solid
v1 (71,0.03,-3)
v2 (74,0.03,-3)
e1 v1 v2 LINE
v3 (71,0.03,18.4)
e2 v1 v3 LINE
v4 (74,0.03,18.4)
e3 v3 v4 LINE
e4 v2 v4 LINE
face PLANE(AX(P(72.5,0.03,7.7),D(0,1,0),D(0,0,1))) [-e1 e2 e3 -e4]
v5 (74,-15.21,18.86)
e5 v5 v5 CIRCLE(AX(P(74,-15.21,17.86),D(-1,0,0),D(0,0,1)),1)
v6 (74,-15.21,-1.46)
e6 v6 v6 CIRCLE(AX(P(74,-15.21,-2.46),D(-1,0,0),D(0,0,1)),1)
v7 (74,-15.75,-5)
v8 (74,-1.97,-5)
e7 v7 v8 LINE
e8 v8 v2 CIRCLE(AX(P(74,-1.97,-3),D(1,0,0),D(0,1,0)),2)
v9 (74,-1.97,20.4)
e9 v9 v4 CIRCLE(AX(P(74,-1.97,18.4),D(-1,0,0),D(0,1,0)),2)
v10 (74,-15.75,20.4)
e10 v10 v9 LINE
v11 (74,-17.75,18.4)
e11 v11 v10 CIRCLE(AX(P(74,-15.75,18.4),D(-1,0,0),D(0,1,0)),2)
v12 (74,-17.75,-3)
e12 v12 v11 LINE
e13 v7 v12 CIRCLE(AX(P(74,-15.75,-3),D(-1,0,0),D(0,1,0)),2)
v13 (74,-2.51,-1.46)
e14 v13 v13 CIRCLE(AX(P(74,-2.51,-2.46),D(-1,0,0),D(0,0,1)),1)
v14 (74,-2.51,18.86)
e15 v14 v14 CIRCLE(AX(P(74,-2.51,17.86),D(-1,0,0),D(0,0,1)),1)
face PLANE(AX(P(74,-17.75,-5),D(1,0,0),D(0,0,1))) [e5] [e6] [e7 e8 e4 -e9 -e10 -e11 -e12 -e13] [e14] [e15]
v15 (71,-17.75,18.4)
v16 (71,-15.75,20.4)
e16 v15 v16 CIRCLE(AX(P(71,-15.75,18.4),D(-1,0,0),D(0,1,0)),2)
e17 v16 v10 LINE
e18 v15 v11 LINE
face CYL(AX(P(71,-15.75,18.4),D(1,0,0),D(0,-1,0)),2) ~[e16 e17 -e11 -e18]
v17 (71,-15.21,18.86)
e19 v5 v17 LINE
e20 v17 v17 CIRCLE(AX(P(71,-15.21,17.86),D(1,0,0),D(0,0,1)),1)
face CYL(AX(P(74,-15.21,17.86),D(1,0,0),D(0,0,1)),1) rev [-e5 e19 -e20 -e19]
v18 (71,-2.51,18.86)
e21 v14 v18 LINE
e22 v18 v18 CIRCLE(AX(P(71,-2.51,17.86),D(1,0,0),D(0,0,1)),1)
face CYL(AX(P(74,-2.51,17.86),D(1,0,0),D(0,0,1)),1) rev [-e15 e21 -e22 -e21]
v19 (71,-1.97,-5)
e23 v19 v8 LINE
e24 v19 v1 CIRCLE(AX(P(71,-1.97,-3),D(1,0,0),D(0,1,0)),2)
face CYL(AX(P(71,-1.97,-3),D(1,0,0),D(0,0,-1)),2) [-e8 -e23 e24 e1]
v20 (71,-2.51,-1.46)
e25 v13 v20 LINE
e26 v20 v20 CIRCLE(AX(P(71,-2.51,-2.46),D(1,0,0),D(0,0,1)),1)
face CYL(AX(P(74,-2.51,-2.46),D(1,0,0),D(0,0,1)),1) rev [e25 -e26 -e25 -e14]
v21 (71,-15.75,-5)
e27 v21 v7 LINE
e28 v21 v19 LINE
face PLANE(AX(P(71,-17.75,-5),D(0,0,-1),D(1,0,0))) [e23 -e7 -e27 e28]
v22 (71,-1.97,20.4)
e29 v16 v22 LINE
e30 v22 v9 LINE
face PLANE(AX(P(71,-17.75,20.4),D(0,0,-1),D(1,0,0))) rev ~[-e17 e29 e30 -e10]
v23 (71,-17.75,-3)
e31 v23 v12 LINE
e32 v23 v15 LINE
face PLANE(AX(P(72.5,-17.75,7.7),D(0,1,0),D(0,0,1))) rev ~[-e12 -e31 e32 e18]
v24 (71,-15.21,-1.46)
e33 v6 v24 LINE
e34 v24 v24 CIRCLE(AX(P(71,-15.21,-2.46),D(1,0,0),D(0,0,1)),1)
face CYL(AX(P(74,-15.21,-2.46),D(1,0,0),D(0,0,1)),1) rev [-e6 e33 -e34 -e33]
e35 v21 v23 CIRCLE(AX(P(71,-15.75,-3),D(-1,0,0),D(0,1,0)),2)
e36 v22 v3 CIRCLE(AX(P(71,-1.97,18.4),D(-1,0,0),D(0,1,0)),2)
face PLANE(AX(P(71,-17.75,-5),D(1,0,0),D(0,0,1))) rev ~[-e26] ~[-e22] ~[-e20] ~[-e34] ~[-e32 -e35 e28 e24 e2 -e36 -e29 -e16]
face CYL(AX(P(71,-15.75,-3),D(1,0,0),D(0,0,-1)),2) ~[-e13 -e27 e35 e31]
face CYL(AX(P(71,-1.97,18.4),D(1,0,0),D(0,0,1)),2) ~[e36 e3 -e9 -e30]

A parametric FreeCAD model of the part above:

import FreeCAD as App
import Part
import Sketcher


def edges_at(feature, points):
    """Names of the edges that pass closest to the given points."""
    edges = feature.Shape.Edges
    near = lambda p: min(range(len(edges)), key=lambda i: edges[i].distToShape(Part.Vertex(*p))[0])
    return sorted({f"Edge{near(p) + 1}" for p in points})


def add_polygon(sketch, points):
    """Adds a closed chain of lines whose ends are joined by coincident constraints."""
    first, n = sketch.GeometryCount, len(points)
    for a, b in zip(points, points[1:] + points[:1]):
        sketch.addGeometry(Part.LineSegment(App.Vector(*a, 0), App.Vector(*b, 0)), False)
    for i in range(n):
        sketch.addConstraint(Sketcher.Constraint("Coincident", first + i, 2, first + (i + 1) % n, 1))

doc = App.newDocument("Part")
body = doc.addObject("PartDesign::Body", "Body")

sketch1 = doc.addObject("Sketcher::SketchObject", "Sketch")
body.addObject(sketch1)
sketch1.AttachmentSupport = (doc.XZ_Plane, [""])
sketch1.MapMode = "FlatFace"
sketch1.addGeometry(Part.Circle(App.Vector(2.5, 2.5, 0), App.Vector(0, 0, 1), 1), False)
sketch1.addConstraint([
    Sketcher.Constraint("Diameter", 0, 2.0),
    Sketcher.Constraint("DistanceX", -1, 1, 0, 3, 2.54),
    Sketcher.Constraint("DistanceY", -1, 1, 0, 3, 2.54),
])
pad1 = doc.addObject("PartDesign::Pad", "Pad")
body.addObject(pad1)
pad1.Profile = sketch1
pad1.Length = 10
body2 = doc.addObject("PartDesign::Body", "Body001")
body2.AllowCompound = True

sketch2 = doc.addObject("Sketcher::SketchObject", "Sketch001")
body2.addObject(sketch2)
sketch2.AttachmentSupport = (doc.getObject("XZ_Plane001"), [""])
sketch2.MapMode = "FlatFace"
sketch2.addGeometry(Part.Circle(App.Vector(2.5, 15.2, 0), App.Vector(0, 0, 1), 1), False)
sketch2.addConstraint([
    Sketcher.Constraint("Diameter", 0, 2.0),
    Sketcher.Constraint("DistanceX", -1, 1, 0, 3, 2.54),
    Sketcher.Constraint("DistanceY", -1, 1, 0, 3, 15.24),
])
pad2 = doc.addObject("PartDesign::Pad", "Pad001")
body2.addObject(pad2)
pad2.Profile = sketch2
pad2.Length = 10
doc.recompute()

boolean = doc.addObject("PartDesign::Boolean", "Boolean")
body2.addObject(boolean)
boolean.Type = "Fuse"
boolean.addObjects([body])
body3 = doc.addObject("PartDesign::Body", "Body002")

sketch3 = doc.addObject("Sketcher::SketchObject", "Sketch002")
body3.addObject(sketch3)
sketch3.AttachmentSupport = (doc.getObject("XZ_Plane002"), [""])
sketch3.MapMode = "FlatFace"
sketch3.addGeometry(Part.Circle(App.Vector(2.5, 2.5, 0), App.Vector(0, 0, 1), 1), False)
sketch3.addConstraint([
    Sketcher.Constraint("Diameter", 0, 2.0),
    Sketcher.Constraint("DistanceX", -1, 1, 0, 3, 2.54),
    Sketcher.Constraint("DistanceY", -1, 1, 0, 3, 2.54),
])
pad3 = doc.addObject("PartDesign::Pad", "Pad002")
body3.addObject(pad3)
pad3.Profile = sketch3
pad3.Length = 10
body4 = doc.addObject("PartDesign::Body", "Body003")
body4.AllowCompound = True

sketch4 = doc.addObject("Sketcher::SketchObject", "Sketch003")
body4.addObject(sketch4)
sketch4.AttachmentSupport = (doc.getObject("XZ_Plane003"), [""])
sketch4.MapMode = "FlatFace"
sketch4.addGeometry(Part.Circle(App.Vector(2.5, 15.2, 0), App.Vector(0, 0, 1), 1), False)
sketch4.addConstraint([
    Sketcher.Constraint("Diameter", 0, 2.0),
    Sketcher.Constraint("DistanceX", -1, 1, 0, 3, 2.54),
    Sketcher.Constraint("DistanceY", -1, 1, 0, 3, 15.24),
])
pad4 = doc.addObject("PartDesign::Pad", "Pad003")
body4.addObject(pad4)
pad4.Profile = sketch4
pad4.Length = 10
doc.recompute()

boolean2 = doc.addObject("PartDesign::Boolean", "Boolean001")
body4.addObject(boolean2)
boolean2.Type = "Fuse"
boolean2.addObjects([body3])
body5 = doc.addObject("PartDesign::Body", "Body004")
body5.AllowCompound = True
doc.recompute()

body4.Placement = App.Placement(App.Vector(20.32, 0, 0), App.Rotation(App.Vector(0, 0, 1), 0))
boolean3 = doc.addObject("PartDesign::Boolean", "Boolean002")
body5.addObject(boolean3)
boolean3.Type = "Fuse"
boolean3.addObjects([body4])
doc.recompute()

boolean4 = doc.addObject("PartDesign::Boolean", "Boolean003")
body5.addObject(boolean4)
boolean4.Type = "Fuse"
boolean4.addObjects([body2])
body6 = doc.addObject("PartDesign::Body", "Body005")
body6.AllowCompound = True
doc.recompute()

body5.Placement = App.Placement(App.Vector(0, 3, 0), App.Rotation(App.Vector(0, 0, 1), 0))
boolean5 = doc.addObject("PartDesign::Boolean", "Boolean004")
body6.addObject(boolean5)
boolean5.Type = "Fuse"
boolean5.addObjects([body5])
body7 = doc.addObject("PartDesign::Body", "Body006")

sketch5 = doc.addObject("Sketcher::SketchObject", "Sketch004")
body7.addObject(sketch5)
sketch5.AttachmentSupport = (doc.getObject("XY_Plane006"), [""])
sketch5.MapMode = "FlatFace"
add_polygon(sketch5, [(0, 3), (0, 0), (25.4, 0), (25.4, 3)])
sketch5.addConstraint([
    Sketcher.Constraint("Vertical", 0),
    Sketcher.Constraint("Horizontal", 1),
    Sketcher.Constraint("Vertical", 2),
    Sketcher.Constraint("Horizontal", 3),
    Sketcher.Constraint("Coincident", 0, 2, -1, 1),
    Sketcher.Constraint("DistanceY", 0, 2, 0, 1, 3.0),
    Sketcher.Constraint("DistanceX", 1, 1, 1, 2, 25.4),
])
pad5 = doc.addObject("PartDesign::Pad", "Pad004")
body7.addObject(pad5)
pad5.Profile = sketch5
pad5.Length = 17.78
doc.recompute()

boolean6 = doc.addObject("PartDesign::Boolean", "Boolean005")
body7.addObject(boolean6)
boolean6.Type = "Cut"
boolean6.addObjects([body6])
doc.recompute()

fillet = doc.addObject("PartDesign::Fillet", "Fillet")
body7.addObject(fillet)
fillet.Base = (boolean6, edges_at(boolean6, [(0, 1.5, 17.78)]))
fillet.Radius = 2
doc.recompute()

fillet2 = doc.addObject("PartDesign::Fillet", "Fillet001")
body7.addObject(fillet2)
fillet2.Base = (fillet, edges_at(fillet, [(0, 1.5, 0)]))
fillet2.Radius = 2
doc.recompute()

fillet3 = doc.addObject("PartDesign::Fillet", "Fillet002")
body7.addObject(fillet3)
fillet3.Base = (fillet2, edges_at(fillet2, [(25.4, 1.5, 0)]))
fillet3.Radius = 2
doc.recompute()

fillet4 = doc.addObject("PartDesign::Fillet", "Fillet003")
body7.addObject(fillet4)
fillet4.Base = (fillet3, edges_at(fillet3, [(25.4, 1.5, 17.78)]))
fillet4.Radius = 2
body8 = doc.addObject("PartDesign::Body", "Body007")
doc.recompute()

body7.Placement = App.Placement(App.Vector(0, 0, 0), App.Rotation(App.Vector(0, 1, 0), 270))
boolean7 = doc.addObject("PartDesign::Boolean", "Boolean006")
body8.addObject(boolean7)
boolean7.Type = "Fuse"
boolean7.addObjects([body7])
body9 = doc.addObject("PartDesign::Body", "Body008")
doc.recompute()

body8.Placement = App.Placement(App.Vector(71, -17.75, -5), App.Rotation(App.Vector(0, 0, 1), 270))
boolean8 = doc.addObject("PartDesign::Boolean", "Boolean007")
body9.addObject(boolean8)
boolean8.Type = "Fuse"
boolean8.addObjects([body8])

doc.recompute()
